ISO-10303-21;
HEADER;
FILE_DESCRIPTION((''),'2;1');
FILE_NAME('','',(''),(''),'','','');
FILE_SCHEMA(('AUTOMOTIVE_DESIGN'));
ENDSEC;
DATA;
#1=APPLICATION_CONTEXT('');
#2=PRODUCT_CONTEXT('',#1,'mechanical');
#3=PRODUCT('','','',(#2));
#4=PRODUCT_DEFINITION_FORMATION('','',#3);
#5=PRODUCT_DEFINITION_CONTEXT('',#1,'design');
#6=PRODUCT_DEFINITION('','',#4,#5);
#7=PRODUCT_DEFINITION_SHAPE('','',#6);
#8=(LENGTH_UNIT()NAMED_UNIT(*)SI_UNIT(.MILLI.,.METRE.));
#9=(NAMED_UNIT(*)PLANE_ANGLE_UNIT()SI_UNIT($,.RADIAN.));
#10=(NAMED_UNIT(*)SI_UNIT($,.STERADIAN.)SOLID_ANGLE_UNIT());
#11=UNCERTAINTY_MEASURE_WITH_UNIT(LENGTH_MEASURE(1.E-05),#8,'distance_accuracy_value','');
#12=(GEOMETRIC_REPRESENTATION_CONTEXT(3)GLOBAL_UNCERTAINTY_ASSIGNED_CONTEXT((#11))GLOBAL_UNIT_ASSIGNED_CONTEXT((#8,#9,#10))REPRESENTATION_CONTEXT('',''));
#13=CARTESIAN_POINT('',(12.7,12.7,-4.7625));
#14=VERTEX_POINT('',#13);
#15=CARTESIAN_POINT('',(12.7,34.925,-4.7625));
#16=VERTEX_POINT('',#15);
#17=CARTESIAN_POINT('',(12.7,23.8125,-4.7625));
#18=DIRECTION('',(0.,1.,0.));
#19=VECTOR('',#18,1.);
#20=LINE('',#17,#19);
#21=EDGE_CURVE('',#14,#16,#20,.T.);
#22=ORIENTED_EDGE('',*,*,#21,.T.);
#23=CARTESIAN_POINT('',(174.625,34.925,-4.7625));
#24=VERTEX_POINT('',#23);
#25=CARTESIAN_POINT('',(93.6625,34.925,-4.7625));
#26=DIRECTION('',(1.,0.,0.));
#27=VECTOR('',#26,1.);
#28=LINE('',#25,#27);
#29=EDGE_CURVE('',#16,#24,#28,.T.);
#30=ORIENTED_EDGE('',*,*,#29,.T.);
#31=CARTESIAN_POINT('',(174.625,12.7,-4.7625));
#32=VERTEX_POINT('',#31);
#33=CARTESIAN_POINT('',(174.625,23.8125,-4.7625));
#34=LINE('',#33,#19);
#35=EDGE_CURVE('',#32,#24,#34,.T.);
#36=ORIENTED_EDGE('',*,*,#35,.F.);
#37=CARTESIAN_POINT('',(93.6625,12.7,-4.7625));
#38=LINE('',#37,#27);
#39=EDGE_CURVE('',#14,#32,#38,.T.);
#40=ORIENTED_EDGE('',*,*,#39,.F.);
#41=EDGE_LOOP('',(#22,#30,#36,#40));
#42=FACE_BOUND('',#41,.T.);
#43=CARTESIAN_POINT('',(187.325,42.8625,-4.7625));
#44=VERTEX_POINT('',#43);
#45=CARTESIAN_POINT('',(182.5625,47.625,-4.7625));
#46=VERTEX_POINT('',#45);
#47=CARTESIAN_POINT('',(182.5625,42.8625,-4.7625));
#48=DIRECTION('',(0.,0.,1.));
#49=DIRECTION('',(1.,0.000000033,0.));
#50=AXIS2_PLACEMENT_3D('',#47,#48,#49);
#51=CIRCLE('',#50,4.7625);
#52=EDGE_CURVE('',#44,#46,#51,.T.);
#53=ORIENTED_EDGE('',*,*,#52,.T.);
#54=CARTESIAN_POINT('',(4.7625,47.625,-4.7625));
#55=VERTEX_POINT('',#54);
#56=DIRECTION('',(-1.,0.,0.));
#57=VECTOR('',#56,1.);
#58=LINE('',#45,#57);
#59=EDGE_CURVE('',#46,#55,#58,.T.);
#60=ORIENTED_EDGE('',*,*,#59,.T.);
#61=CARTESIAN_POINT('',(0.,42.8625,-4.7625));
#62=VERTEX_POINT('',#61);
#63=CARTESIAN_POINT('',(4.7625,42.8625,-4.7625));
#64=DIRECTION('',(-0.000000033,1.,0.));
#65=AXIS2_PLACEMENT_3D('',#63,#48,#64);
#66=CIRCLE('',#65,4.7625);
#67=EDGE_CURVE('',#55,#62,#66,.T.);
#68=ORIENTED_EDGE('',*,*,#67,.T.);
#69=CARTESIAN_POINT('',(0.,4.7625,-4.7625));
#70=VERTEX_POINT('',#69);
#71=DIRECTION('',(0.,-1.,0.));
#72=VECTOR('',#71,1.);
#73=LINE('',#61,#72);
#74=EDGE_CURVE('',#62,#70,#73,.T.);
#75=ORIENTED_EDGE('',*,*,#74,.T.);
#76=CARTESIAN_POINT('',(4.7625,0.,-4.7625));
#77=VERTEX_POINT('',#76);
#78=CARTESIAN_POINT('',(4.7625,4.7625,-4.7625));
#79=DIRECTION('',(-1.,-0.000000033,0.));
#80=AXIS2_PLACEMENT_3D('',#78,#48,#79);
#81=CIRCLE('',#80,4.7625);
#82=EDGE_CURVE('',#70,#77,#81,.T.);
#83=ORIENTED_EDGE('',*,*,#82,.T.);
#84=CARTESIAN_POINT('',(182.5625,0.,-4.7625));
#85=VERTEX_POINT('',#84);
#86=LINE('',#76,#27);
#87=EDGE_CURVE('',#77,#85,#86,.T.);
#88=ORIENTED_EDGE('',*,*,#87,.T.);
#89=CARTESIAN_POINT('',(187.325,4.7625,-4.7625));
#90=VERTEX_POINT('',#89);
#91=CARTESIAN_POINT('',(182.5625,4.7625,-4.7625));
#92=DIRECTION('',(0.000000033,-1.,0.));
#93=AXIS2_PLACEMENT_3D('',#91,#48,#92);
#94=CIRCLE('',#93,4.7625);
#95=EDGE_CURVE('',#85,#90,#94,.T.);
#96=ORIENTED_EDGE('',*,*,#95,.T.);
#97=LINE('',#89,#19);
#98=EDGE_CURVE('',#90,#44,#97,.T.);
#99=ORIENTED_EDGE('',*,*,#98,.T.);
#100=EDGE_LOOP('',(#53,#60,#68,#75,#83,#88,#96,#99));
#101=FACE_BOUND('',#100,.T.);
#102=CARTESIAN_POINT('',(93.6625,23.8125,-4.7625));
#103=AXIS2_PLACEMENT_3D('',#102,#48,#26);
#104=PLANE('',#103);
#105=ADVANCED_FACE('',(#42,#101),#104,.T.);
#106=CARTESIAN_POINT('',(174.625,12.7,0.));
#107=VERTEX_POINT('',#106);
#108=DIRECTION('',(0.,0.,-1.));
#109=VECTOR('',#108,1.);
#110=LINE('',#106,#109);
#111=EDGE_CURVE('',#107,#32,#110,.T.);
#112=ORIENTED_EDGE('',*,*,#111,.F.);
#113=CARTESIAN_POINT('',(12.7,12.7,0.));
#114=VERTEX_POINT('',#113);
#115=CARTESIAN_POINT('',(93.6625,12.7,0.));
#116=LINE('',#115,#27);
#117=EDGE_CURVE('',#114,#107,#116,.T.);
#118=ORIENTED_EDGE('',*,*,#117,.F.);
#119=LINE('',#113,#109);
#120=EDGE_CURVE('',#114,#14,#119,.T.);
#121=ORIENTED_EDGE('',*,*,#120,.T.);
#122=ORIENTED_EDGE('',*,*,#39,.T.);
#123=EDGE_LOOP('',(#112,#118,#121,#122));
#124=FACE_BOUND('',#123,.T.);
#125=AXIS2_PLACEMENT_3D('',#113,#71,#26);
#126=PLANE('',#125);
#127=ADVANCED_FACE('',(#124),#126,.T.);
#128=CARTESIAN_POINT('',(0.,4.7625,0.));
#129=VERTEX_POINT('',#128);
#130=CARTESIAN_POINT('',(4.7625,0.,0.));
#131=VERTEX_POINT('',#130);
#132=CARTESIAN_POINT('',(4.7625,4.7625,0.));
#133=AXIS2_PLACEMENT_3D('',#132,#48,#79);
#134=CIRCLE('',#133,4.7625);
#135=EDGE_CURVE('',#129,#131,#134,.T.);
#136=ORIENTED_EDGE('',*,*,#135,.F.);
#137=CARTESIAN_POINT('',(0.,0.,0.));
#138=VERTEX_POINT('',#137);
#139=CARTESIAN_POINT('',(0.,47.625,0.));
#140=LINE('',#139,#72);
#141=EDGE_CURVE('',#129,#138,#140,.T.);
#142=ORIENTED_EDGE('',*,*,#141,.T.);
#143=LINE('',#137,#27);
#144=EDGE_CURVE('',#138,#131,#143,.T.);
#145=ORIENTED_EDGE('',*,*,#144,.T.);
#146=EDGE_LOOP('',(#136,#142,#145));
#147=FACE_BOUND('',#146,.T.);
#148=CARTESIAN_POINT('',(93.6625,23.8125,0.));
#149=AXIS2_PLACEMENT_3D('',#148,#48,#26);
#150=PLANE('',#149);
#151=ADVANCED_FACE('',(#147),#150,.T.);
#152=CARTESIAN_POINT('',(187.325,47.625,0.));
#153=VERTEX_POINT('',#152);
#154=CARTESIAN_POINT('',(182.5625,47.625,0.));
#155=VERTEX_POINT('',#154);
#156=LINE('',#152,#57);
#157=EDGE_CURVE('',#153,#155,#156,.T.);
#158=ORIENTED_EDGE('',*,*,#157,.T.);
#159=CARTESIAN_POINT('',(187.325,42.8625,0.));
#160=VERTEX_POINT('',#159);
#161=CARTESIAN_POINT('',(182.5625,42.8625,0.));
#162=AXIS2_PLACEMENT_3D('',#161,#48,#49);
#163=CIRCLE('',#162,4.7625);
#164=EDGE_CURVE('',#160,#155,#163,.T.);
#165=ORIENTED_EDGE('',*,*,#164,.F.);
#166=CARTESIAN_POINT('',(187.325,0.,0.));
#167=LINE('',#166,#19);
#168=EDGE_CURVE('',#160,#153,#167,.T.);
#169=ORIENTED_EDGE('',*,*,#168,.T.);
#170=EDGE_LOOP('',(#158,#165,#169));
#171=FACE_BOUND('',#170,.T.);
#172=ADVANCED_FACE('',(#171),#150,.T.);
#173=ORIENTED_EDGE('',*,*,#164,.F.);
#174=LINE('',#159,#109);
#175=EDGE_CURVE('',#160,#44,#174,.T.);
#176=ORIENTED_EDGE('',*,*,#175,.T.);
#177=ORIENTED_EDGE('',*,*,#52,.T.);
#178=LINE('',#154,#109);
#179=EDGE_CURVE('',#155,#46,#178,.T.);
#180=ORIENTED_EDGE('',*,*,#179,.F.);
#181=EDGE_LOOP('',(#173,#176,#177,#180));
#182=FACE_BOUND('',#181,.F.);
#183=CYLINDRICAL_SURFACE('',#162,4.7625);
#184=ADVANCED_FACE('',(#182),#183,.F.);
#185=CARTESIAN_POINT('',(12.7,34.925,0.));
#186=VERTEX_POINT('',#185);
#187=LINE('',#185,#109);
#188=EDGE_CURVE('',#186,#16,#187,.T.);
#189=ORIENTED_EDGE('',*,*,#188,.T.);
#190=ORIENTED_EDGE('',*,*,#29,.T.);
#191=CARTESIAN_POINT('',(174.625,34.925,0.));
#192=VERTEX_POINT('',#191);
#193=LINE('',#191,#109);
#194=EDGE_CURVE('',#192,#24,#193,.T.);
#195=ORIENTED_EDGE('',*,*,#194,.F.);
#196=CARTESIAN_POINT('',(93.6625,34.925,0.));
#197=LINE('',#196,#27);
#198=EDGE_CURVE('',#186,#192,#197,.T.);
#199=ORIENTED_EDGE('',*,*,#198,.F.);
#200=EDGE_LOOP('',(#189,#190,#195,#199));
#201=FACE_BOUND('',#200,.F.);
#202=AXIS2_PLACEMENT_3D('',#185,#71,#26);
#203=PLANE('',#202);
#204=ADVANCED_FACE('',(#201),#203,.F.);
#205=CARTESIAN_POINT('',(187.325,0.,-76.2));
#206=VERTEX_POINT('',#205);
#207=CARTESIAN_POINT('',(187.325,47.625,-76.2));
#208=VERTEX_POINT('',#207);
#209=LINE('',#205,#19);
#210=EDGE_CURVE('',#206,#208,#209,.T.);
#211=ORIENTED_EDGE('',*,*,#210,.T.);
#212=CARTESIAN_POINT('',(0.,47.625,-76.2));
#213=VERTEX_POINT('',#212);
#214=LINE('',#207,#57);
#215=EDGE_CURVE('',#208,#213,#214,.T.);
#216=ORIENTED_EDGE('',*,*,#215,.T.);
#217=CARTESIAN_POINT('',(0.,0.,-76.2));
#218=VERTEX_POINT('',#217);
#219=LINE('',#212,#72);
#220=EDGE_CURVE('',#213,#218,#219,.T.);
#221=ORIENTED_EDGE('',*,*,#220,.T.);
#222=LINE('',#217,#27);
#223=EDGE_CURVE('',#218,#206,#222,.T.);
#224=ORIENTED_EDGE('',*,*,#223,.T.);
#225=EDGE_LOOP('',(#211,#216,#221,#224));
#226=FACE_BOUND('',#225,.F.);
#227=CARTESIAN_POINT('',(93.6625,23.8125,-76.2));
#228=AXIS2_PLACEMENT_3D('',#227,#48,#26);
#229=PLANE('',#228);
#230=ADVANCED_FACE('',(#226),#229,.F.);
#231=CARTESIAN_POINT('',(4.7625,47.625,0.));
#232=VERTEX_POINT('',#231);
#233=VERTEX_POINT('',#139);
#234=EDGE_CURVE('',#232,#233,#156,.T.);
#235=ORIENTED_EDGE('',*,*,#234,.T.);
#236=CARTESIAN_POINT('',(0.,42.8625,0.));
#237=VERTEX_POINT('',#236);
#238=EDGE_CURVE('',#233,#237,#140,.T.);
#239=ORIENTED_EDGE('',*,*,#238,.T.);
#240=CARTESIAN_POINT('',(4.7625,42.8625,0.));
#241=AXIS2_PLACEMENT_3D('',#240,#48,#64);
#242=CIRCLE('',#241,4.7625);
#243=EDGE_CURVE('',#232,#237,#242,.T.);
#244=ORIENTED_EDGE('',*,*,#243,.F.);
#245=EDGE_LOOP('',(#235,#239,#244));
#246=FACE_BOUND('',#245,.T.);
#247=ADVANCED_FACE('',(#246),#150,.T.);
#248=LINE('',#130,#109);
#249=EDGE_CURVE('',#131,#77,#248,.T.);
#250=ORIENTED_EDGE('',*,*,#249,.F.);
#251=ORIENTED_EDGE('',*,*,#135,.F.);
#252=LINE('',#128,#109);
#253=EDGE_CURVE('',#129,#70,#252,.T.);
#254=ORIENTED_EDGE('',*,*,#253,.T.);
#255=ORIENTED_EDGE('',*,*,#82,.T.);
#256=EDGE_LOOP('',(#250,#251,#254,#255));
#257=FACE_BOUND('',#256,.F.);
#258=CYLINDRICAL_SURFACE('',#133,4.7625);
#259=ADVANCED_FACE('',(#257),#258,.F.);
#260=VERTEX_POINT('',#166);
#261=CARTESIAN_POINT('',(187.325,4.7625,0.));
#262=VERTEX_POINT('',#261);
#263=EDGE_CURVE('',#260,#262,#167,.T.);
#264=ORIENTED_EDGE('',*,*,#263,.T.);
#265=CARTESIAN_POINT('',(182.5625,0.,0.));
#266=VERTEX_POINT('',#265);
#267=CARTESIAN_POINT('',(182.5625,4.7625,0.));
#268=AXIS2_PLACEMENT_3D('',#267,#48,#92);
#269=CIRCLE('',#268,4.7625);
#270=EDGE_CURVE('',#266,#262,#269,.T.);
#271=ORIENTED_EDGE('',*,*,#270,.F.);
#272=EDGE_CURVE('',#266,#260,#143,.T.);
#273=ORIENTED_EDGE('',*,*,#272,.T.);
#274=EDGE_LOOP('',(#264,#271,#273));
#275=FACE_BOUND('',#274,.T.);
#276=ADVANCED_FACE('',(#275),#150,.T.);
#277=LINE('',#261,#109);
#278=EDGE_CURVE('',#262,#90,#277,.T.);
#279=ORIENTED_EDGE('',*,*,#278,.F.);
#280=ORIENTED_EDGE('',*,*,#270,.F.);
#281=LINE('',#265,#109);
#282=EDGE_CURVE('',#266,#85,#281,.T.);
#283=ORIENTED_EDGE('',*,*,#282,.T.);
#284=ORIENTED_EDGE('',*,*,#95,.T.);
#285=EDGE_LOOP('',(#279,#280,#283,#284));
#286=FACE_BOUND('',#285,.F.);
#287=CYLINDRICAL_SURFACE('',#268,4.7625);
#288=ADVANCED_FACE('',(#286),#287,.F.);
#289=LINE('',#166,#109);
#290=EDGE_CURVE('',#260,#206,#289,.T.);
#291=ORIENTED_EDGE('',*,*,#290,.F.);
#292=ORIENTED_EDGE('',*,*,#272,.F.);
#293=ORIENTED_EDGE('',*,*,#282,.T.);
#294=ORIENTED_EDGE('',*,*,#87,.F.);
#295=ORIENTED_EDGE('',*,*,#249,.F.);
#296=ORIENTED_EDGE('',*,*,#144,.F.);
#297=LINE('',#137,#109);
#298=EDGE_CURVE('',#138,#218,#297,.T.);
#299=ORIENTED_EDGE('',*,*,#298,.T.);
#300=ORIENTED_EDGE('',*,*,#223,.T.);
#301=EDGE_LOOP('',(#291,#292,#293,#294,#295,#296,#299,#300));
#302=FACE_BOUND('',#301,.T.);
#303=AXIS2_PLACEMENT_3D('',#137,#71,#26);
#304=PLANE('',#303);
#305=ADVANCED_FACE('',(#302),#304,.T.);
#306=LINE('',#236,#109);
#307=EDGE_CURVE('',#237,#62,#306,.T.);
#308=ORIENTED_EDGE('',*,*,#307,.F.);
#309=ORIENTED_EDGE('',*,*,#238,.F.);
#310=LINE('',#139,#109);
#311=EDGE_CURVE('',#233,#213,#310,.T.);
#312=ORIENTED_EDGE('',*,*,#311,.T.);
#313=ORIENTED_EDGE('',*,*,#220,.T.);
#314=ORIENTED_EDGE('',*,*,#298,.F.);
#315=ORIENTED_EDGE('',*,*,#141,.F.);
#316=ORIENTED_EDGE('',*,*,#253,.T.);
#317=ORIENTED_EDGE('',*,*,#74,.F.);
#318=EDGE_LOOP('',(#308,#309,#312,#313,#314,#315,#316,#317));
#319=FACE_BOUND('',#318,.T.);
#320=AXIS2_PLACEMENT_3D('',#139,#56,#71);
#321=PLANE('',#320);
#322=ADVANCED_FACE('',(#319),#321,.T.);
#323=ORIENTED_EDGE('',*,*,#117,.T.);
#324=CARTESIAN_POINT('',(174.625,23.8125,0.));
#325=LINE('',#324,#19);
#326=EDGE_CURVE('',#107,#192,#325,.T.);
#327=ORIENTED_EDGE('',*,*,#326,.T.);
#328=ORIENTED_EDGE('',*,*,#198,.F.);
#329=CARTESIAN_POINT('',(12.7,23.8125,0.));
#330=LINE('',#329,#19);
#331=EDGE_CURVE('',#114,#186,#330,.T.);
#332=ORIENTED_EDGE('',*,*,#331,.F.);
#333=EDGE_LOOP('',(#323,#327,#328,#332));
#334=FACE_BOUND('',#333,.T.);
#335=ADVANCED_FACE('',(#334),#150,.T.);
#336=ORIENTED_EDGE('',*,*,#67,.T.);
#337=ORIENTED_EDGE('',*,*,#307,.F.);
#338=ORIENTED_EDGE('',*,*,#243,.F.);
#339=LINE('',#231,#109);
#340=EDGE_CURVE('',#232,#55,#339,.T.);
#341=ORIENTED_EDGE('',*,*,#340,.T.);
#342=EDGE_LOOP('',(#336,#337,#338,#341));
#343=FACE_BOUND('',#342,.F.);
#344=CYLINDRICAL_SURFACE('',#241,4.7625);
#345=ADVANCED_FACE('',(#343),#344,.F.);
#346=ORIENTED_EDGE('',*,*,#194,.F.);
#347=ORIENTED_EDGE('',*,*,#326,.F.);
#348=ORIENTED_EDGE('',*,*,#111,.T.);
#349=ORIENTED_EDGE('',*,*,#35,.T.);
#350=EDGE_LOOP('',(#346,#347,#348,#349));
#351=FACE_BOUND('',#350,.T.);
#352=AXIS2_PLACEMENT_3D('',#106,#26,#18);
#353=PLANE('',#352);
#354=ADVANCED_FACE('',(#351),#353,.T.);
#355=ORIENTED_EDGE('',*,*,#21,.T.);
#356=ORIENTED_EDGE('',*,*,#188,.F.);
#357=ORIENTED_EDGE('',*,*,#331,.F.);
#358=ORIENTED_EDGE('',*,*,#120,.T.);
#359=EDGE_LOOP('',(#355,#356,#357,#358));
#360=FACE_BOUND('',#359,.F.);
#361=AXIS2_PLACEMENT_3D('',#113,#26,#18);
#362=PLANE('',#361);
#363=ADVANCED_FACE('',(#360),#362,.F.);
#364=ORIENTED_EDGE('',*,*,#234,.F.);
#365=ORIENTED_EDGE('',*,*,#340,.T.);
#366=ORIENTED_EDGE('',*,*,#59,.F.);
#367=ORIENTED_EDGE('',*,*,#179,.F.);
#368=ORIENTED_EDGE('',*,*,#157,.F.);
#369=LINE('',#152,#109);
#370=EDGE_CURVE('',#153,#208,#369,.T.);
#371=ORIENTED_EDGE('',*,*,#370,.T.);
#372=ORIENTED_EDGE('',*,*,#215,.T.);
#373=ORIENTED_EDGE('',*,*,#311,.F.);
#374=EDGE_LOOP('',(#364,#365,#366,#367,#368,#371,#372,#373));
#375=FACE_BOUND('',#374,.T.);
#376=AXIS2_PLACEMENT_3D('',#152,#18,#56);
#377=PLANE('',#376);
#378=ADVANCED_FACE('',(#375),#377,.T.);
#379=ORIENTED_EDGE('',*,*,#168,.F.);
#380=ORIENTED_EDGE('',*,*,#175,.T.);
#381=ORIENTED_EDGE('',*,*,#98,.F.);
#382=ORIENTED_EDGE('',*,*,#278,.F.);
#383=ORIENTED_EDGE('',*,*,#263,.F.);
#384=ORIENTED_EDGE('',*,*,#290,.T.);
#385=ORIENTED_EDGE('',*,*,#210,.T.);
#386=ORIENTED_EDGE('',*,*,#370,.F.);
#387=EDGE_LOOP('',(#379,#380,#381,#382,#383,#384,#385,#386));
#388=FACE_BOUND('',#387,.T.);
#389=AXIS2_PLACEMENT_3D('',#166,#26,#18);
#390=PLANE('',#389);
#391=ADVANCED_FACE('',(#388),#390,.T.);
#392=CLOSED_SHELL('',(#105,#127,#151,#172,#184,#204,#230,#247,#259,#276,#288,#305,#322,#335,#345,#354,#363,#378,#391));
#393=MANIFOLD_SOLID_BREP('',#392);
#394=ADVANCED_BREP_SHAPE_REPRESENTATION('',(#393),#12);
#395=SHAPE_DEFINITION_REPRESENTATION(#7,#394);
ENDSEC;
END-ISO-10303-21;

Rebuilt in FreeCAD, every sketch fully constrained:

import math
import FreeCAD as App
import Part
import Sketcher

V = App.Vector
Q = App.Units.Quantity

doc = App.newDocument("Part")
body = doc.addObject("PartDesign::Body", "Body")

# Sketch on XY plane
sketch1 = body.newObject("Sketcher::SketchObject", "Sketch")
sketch1.AttachmentSupport = (doc.getObject("XY_Plane"), [""])
sketch1.MapMode = "FlatFace"
sketch1.addGeometry(Part.LineSegment(V(0, 0, 0), V(187, 0, 0)), False)
sketch1.addGeometry(Part.LineSegment(V(187, 0, 0), V(187, 48, 0)), False)
sketch1.addGeometry(Part.LineSegment(V(187, 48, 0), V(0, 48, 0)), False)
sketch1.addGeometry(Part.LineSegment(V(0, 48, 0), V(0, 0, 0)), False)
sketch1.addConstraint(Sketcher.Constraint("Coincident", 0, 2, 1, 1))
sketch1.addConstraint(Sketcher.Constraint("Coincident", 1, 2, 2, 1))
sketch1.addConstraint(Sketcher.Constraint("Coincident", 2, 2, 3, 1))
sketch1.addConstraint(Sketcher.Constraint("Coincident", 3, 2, 0, 1))
sketch1.addConstraint(Sketcher.Constraint("Horizontal", 0))
sketch1.addConstraint(Sketcher.Constraint("Vertical", 1))
sketch1.addConstraint(Sketcher.Constraint("Horizontal", 2))
sketch1.addConstraint(Sketcher.Constraint("Vertical", 3))
sketch1.addConstraint(Sketcher.Constraint("Coincident", 3, 2, -1, 1))
sketch1.addConstraint(Sketcher.Constraint("DistanceX", 0, 1, 0, 2, Q("7.375 in")))
sketch1.addConstraint(Sketcher.Constraint("DistanceY", 1, 1, 1, 2, Q("1.875 in")))
pad1 = body.newObject("PartDesign::Pad", "Pad")
pad1.Profile = sketch1
pad1.Length = Q("3 in")
pad1.Reversed = True

# Sketch on XY plane
sketch2 = body.newObject("Sketcher::SketchObject", "Sketch001")
sketch2.AttachmentSupport = (doc.getObject("XY_Plane"), [""])
sketch2.MapMode = "FlatFace"
sketch2.addGeometry(Part.LineSegment(V(187.3, 4.8, 0), V(187.3, 42.9, 0)), False)
sketch2.addGeometry(Part.ArcOfCircle(Part.Circle(V(182.6, 42.9, 0), V(0, 0, 1), 4.8), math.radians(0), math.radians(90)), False)
sketch2.addGeometry(Part.LineSegment(V(182.6, 47.6, 0), V(4.8, 47.6, 0)), False)
sketch2.addGeometry(Part.ArcOfCircle(Part.Circle(V(4.8, 42.9, 0), V(0, 0, 1), 4.8), math.radians(90), math.radians(180)), False)
sketch2.addGeometry(Part.LineSegment(V(0, 42.9, 0), V(0, 4.8, 0)), False)
sketch2.addGeometry(Part.ArcOfCircle(Part.Circle(V(4.8, 4.8, 0), V(0, 0, 1), 4.8), math.radians(-180), math.radians(-90)), False)
sketch2.addGeometry(Part.LineSegment(V(4.8, 0, 0), V(182.6, 0, 0)), False)
sketch2.addGeometry(Part.ArcOfCircle(Part.Circle(V(182.6, 4.8, 0), V(0, 0, 1), 4.8), math.radians(-90), math.radians(0)), False)
sketch2.addGeometry(Part.LineSegment(V(174.6, 12.7, 0), V(12.7, 12.7, 0)), False)
sketch2.addGeometry(Part.LineSegment(V(12.7, 12.7, 0), V(12.7, 34.9, 0)), False)
sketch2.addGeometry(Part.LineSegment(V(12.7, 34.9, 0), V(174.6, 34.9, 0)), False)
sketch2.addGeometry(Part.LineSegment(V(174.6, 34.9, 0), V(174.6, 12.7, 0)), False)
sketch2.addConstraint(Sketcher.Constraint("Tangent", 0, 2, 1, 1))
sketch2.addConstraint(Sketcher.Constraint("Tangent", 1, 2, 2, 1))
sketch2.addConstraint(Sketcher.Constraint("Tangent", 2, 2, 3, 1))
sketch2.addConstraint(Sketcher.Constraint("Tangent", 3, 2, 4, 1))
sketch2.addConstraint(Sketcher.Constraint("Tangent", 4, 2, 5, 1))
sketch2.addConstraint(Sketcher.Constraint("Tangent", 5, 2, 6, 1))
sketch2.addConstraint(Sketcher.Constraint("Tangent", 6, 2, 7, 1))
sketch2.addConstraint(Sketcher.Constraint("Tangent", 7, 2, 0, 1))
sketch2.addConstraint(Sketcher.Constraint("Coincident", 8, 2, 9, 1))
sketch2.addConstraint(Sketcher.Constraint("Coincident", 9, 2, 10, 1))
sketch2.addConstraint(Sketcher.Constraint("Coincident", 10, 2, 11, 1))
sketch2.addConstraint(Sketcher.Constraint("Coincident", 11, 2, 8, 1))
sketch2.addConstraint(Sketcher.Constraint("Vertical", 0))
sketch2.addConstraint(Sketcher.Constraint("Horizontal", 2))
sketch2.addConstraint(Sketcher.Constraint("Vertical", 4))
sketch2.addConstraint(Sketcher.Constraint("Horizontal", 6))
sketch2.addConstraint(Sketcher.Constraint("Horizontal", 8))
sketch2.addConstraint(Sketcher.Constraint("Vertical", 9))
sketch2.addConstraint(Sketcher.Constraint("Horizontal", 10))
sketch2.addConstraint(Sketcher.Constraint("Vertical", 11))
sketch2.addConstraint(Sketcher.Constraint("Equal", 1, 3))
sketch2.addConstraint(Sketcher.Constraint("Equal", 3, 5))
sketch2.addConstraint(Sketcher.Constraint("Equal", 5, 7))
sketch2.addConstraint(Sketcher.Constraint("PointOnObject", 3, 2, -2))
sketch2.addConstraint(Sketcher.Constraint("PointOnObject", 5, 2, -1))
sketch2.addConstraint(Sketcher.Constraint("DistanceX", 2, 2, 2, 1, Q("7 in")))
sketch2.addConstraint(Sketcher.Constraint("DistanceY", 0, 1, 0, 2, Q("1.5 in")))
sketch2.addConstraint(Sketcher.Constraint("Radius", 1, Q("0.1875 in")))
sketch2.addConstraint(Sketcher.Constraint("DistanceX", -1, 1, 8, 2, Q("0.5 in")))
sketch2.addConstraint(Sketcher.Constraint("DistanceY", -1, 1, 8, 2, Q("0.5 in")))
sketch2.addConstraint(Sketcher.Constraint("DistanceY", 9, 2, 2, 2, Q("0.5 in")))
sketch2.addConstraint(Sketcher.Constraint("DistanceX", 10, 2, 0, 2, Q("0.5 in")))
pocket1 = body.newObject("PartDesign::Pocket", "Pocket")
pocket1.Profile = sketch2
pocket1.Length = Q("0.1875 in")

doc.recompute()
